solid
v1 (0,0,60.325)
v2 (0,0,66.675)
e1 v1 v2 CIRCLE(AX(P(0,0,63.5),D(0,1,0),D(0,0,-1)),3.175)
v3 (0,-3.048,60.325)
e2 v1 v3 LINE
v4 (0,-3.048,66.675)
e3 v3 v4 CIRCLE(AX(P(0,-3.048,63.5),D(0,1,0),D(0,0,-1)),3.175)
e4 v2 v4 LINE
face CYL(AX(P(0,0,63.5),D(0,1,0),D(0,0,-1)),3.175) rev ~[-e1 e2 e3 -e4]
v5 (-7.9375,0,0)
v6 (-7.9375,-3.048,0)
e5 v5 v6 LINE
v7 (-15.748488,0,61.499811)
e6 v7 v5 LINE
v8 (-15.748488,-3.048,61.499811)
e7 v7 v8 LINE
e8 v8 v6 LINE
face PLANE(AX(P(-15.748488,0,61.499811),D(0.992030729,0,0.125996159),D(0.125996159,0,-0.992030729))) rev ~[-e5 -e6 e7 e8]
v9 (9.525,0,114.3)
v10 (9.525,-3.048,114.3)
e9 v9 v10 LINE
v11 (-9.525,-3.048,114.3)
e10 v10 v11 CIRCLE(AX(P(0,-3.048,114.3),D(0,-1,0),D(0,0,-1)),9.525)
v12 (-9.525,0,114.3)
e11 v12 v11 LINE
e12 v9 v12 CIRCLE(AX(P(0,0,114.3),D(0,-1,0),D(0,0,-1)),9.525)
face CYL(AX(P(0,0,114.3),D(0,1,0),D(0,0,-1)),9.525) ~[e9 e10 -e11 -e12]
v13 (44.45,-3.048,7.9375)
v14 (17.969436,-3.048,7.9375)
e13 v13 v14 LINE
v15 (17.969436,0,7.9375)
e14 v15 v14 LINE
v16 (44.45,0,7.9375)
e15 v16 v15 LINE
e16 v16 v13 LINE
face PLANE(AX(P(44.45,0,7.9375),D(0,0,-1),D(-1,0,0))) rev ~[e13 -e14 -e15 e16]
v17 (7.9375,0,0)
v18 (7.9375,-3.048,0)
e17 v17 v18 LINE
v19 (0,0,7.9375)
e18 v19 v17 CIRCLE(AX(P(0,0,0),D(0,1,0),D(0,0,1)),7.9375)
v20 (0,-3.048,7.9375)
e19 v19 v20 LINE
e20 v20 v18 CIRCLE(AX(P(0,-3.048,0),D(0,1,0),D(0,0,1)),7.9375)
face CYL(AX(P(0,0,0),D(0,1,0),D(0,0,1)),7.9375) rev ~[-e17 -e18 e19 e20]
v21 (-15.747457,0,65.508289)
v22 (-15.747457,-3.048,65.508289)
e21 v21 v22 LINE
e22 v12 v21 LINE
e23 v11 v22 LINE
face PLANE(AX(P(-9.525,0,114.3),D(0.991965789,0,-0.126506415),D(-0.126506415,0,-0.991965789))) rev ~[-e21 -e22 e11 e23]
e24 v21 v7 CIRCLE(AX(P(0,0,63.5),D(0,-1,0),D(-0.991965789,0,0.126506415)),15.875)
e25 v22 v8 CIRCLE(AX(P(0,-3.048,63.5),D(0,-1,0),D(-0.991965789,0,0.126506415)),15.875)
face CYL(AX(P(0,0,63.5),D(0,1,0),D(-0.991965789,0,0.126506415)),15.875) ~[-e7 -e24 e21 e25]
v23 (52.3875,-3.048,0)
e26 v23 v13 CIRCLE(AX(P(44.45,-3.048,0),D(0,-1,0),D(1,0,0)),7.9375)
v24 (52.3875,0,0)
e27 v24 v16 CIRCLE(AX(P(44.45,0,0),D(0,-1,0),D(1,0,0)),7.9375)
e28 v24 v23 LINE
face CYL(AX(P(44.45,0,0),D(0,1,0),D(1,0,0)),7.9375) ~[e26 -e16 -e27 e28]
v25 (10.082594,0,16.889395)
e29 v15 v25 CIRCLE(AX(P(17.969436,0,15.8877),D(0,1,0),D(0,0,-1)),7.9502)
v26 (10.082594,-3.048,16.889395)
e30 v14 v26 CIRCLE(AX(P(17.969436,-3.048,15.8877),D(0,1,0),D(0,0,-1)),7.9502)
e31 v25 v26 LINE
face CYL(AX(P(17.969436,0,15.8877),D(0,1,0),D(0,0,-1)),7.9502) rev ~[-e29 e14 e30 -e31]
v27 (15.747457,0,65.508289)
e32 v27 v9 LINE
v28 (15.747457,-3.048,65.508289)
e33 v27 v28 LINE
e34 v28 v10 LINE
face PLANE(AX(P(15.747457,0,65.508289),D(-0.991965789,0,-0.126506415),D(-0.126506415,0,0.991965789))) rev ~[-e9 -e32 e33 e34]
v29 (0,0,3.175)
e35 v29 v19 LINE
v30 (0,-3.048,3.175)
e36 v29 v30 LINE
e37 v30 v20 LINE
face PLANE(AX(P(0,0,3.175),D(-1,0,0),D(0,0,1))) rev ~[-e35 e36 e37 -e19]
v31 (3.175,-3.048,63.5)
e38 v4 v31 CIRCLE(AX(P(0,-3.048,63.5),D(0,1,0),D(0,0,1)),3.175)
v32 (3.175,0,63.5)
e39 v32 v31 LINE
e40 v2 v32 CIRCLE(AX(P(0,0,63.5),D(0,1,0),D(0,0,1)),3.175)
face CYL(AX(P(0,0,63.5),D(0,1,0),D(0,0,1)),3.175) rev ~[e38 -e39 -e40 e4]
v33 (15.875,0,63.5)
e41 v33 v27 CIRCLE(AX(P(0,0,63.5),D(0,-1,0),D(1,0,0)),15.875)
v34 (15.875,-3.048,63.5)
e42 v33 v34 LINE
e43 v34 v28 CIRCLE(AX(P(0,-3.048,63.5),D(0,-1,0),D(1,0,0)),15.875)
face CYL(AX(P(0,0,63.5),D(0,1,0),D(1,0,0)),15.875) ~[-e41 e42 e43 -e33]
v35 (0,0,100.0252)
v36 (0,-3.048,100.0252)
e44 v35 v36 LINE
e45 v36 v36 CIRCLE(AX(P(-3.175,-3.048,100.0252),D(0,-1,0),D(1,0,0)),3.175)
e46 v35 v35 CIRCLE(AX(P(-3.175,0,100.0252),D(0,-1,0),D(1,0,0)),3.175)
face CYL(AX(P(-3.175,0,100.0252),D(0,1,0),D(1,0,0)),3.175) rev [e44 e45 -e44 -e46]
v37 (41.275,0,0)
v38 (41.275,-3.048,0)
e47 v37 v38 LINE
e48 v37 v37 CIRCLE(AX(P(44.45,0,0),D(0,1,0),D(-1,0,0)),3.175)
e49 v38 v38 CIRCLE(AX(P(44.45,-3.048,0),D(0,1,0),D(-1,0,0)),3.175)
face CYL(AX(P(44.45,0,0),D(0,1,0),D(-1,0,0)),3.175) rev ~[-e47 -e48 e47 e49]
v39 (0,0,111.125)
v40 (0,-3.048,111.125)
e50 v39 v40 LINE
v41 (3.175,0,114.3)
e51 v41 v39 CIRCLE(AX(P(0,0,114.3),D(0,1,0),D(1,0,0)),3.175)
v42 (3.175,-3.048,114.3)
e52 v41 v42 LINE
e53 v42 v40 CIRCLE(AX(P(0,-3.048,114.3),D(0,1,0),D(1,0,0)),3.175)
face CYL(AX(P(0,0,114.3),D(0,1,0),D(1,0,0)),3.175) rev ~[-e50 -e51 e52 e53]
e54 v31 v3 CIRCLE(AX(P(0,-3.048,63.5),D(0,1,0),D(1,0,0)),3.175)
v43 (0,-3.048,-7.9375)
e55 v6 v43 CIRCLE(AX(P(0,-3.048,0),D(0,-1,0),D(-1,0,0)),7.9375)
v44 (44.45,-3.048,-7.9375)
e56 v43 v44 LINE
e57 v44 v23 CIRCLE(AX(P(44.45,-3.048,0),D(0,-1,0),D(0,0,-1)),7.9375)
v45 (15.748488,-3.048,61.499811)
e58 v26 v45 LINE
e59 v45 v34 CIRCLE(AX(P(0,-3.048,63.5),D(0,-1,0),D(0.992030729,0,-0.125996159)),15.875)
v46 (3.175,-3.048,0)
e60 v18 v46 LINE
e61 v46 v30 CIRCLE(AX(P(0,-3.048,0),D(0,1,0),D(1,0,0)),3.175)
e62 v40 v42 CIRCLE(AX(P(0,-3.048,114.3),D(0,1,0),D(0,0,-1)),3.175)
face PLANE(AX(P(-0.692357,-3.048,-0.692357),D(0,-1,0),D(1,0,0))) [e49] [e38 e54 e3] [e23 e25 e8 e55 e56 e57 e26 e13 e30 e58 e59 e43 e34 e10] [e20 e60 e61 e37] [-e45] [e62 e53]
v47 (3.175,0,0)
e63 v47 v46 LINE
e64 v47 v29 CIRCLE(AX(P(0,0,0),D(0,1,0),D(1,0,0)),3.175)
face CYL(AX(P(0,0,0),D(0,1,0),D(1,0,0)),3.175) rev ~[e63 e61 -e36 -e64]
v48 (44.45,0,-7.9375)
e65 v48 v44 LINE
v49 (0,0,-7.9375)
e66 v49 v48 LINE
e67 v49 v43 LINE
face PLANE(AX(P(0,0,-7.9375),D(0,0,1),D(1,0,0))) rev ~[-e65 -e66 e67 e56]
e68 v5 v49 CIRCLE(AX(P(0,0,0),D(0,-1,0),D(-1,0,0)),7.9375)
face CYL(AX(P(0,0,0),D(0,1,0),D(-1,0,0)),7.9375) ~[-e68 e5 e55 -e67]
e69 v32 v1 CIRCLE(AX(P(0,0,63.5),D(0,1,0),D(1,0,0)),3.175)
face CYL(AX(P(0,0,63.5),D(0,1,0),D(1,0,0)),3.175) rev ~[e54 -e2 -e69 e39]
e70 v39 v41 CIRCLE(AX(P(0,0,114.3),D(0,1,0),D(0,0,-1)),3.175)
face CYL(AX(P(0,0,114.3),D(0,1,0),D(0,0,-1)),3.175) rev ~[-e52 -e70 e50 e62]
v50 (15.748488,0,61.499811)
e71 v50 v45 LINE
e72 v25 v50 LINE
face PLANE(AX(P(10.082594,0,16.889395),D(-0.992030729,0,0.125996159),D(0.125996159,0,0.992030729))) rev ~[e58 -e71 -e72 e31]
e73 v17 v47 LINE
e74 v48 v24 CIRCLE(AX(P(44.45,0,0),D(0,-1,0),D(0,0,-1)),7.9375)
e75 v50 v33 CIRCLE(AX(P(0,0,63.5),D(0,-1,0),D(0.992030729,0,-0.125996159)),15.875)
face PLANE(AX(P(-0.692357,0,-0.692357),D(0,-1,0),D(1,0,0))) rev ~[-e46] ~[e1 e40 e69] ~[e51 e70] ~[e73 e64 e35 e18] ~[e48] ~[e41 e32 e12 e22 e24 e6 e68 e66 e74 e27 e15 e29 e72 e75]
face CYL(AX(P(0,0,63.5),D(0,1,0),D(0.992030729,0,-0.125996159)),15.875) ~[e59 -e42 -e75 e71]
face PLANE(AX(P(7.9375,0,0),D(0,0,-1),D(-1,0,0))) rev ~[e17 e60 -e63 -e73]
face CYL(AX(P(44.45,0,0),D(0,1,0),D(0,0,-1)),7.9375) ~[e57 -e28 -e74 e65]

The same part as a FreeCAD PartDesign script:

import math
import FreeCAD as App
import Part
import Sketcher

V = App.Vector
Q = App.Units.Quantity

doc = App.newDocument("Part")
body = doc.addObject("PartDesign::Body", "Body")

# Sketch on XZ plane
sketch1 = doc.addObject("Sketcher::SketchObject", "Sketch")
body.addObject(sketch1)
sketch1.AttachmentSupport = (doc.XZ_Plane, [""])
sketch1.MapMode = "FlatFace"
sketch1.addGeometry(Part.ArcOfCircle(Part.Circle(V(0, 63.5, 0), V(0, 0, 1), 15.9), math.radians(172.73), math.radians(187.24)), False)
sketch1.addGeometry(Part.LineSegment(V(-15.7, 61.5, 0), V(-7.9, 0, 0)), False)
sketch1.addGeometry(Part.ArcOfCircle(Part.Circle(V(0, 0, 0), V(0, 0, 1), 7.9), math.radians(180), math.radians(270)), False)
sketch1.addGeometry(Part.LineSegment(V(0, -7.9, 0), V(44.5, -7.9, 0)), False)
sketch1.addGeometry(Part.ArcOfCircle(Part.Circle(V(44.5, 0, 0), V(0, 0, 1), 7.9), math.radians(-90), math.radians(0)), False)
sketch1.addGeometry(Part.ArcOfCircle(Part.Circle(V(44.5, 0, 0), V(0, 0, 1), 7.9), math.radians(0), math.radians(90)), False)
sketch1.addGeometry(Part.LineSegment(V(44.5, 7.9, 0), V(18, 7.9, 0)), False)
sketch1.addGeometry(Part.ArcOfCircle(Part.Circle(V(18, 15.9, 0), V(0, 0, 1), 8), math.radians(173), math.radians(270)), False)
sketch1.addGeometry(Part.LineSegment(V(10.1, 16.9, 0), V(15.7, 61.5, 0)), False)
sketch1.addGeometry(Part.ArcOfCircle(Part.Circle(V(0, 63.5, 0), V(0, 0, 1), 15.9), math.radians(-7.24), math.radians(0)), False)
sketch1.addGeometry(Part.ArcOfCircle(Part.Circle(V(0, 63.5, 0), V(0, 0, 1), 15.9), math.radians(0), math.radians(7.27)), False)
sketch1.addGeometry(Part.LineSegment(V(15.7, 65.5, 0), V(9.5, 114.3, 0)), False)
sketch1.addGeometry(Part.ArcOfCircle(Part.Circle(V(0, 114.3, 0), V(0, 0, 1), 9.5), math.radians(0), math.radians(180)), False)
sketch1.addGeometry(Part.LineSegment(V(-9.5, 114.3, 0), V(-15.7, 65.5, 0)), False)
sketch1.addGeometry(Part.ArcOfCircle(Part.Circle(V(0, 0, 0), V(0, 0, 1), 7.9), math.radians(0), math.radians(90)), False)
sketch1.addGeometry(Part.LineSegment(V(7.9, 0, 0), V(3.2, 0, 0)), False)
sketch1.addGeometry(Part.ArcOfCircle(Part.Circle(V(0, 0, 0), V(0, 0, 1), 3.2), math.radians(90), math.radians(360)), False)
sketch1.addGeometry(Part.LineSegment(V(0, 3.2, 0), V(0, 7.9, 0)), False)
sketch1.addGeometry(Part.Circle(V(44.5, 0, 0), V(0, 0, 1), 3.2), False)
sketch1.addGeometry(Part.ArcOfCircle(Part.Circle(V(0, 63.5, 0), V(0, 0, 1), 3.2), math.radians(90), math.radians(270)), False)
sketch1.addGeometry(Part.ArcOfCircle(Part.Circle(V(0, 63.5, 0), V(0, 0, 1), 3.2), math.radians(0), math.radians(90)), False)
sketch1.addGeometry(Part.ArcOfCircle(Part.Circle(V(0, 63.5, 0), V(0, 0, 1), 3.2), math.radians(-90), math.radians(0)), False)
sketch1.addGeometry(Part.Circle(V(-3.2, 100, 0), V(0, 0, 1), 3.2), False)
sketch1.addGeometry(Part.ArcOfCircle(Part.Circle(V(0, 114.3, 0), V(0, 0, 1), 3.2), math.radians(0), math.radians(270)), False)
sketch1.addGeometry(Part.ArcOfCircle(Part.Circle(V(0, 114.3, 0), V(0, 0, 1), 3.2), math.radians(-90), math.radians(0)), False)
sketch1.addConstraint(Sketcher.Constraint("Tangent", 0, 2, 1, 1))
sketch1.addConstraint(Sketcher.Constraint("Coincident", 1, 2, 2, 1))
sketch1.addConstraint(Sketcher.Constraint("Tangent", 2, 2, 3, 1))
sketch1.addConstraint(Sketcher.Constraint("Tangent", 3, 2, 4, 1))
sketch1.addConstraint(Sketcher.Constraint("Tangent", 4, 2, 5, 1))
sketch1.addConstraint(Sketcher.Constraint("Tangent", 5, 2, 6, 1))
sketch1.addConstraint(Sketcher.Constraint("Tangent", 6, 2, 7, 2))
sketch1.addConstraint(Sketcher.Constraint("Tangent", 7, 1, 8, 1))
sketch1.addConstraint(Sketcher.Constraint("Tangent", 8, 2, 9, 1))
sketch1.addConstraint(Sketcher.Constraint("Tangent", 9, 2, 10, 1))
sketch1.addConstraint(Sketcher.Constraint("Tangent", 10, 2, 11, 1))
sketch1.addConstraint(Sketcher.Constraint("Coincident", 11, 2, 12, 1))
sketch1.addConstraint(Sketcher.Constraint("Coincident", 12, 2, 13, 1))
sketch1.addConstraint(Sketcher.Constraint("Tangent", 13, 2, 0, 1))
sketch1.addConstraint(Sketcher.Constraint("Coincident", 14, 1, 15, 1))
sketch1.addConstraint(Sketcher.Constraint("Coincident", 15, 2, 16, 2))
sketch1.addConstraint(Sketcher.Constraint("Coincident", 16, 1, 17, 1))
sketch1.addConstraint(Sketcher.Constraint("Coincident", 17, 2, 14, 2))
sketch1.addConstraint(Sketcher.Constraint("Tangent", 19, 1, 20, 2))
sketch1.addConstraint(Sketcher.Constraint("Tangent", 20, 1, 21, 2))
sketch1.addConstraint(Sketcher.Constraint("Tangent", 21, 1, 19, 2))
sketch1.addConstraint(Sketcher.Constraint("Tangent", 23, 1, 24, 2))
sketch1.addConstraint(Sketcher.Constraint("Coincident", 24, 1, 23, 2))
sketch1.addConstraint(Sketcher.Constraint("Horizontal", 3))
sketch1.addConstraint(Sketcher.Constraint("Horizontal", 6))
sketch1.addConstraint(Sketcher.Constraint("Horizontal", 15))
sketch1.addConstraint(Sketcher.Constraint("Vertical", 17))
sketch1.addConstraint(Sketcher.Constraint("Coincident", 2, 3, -1, 1))
sketch1.addConstraint(Sketcher.Constraint("Coincident", 14, 3, -1, 1))
sketch1.addConstraint(Sketcher.Constraint("Coincident", 16, 3, -1, 1))
sketch1.addConstraint(Sketcher.Constraint("Coincident", 9, 3, 0, 3))
sketch1.addConstraint(Sketcher.Constraint("Coincident", 18, 3, 4, 3))
sketch1.addConstraint(Sketcher.Constraint("Coincident", 19, 3, 0, 3))
sketch1.addConstraint(Sketcher.Constraint("Coincident", 23, 3, 12, 3))
sketch1.addConstraint(Sketcher.Constraint("Equal", 2, 4))
sketch1.addConstraint(Sketcher.Constraint("Equal", 4, 5))
sketch1.addConstraint(Sketcher.Constraint("Equal", 0, 9))
sketch1.addConstraint(Sketcher.Constraint("Equal", 9, 10))
sketch1.addConstraint(Sketcher.Constraint("Equal", 5, 14))
sketch1.addConstraint(Sketcher.Constraint("Equal", 16, 18))
sketch1.addConstraint(Sketcher.Constraint("Equal", 18, 19))
sketch1.addConstraint(Sketcher.Constraint("Equal", 21, 22))
sketch1.addConstraint(Sketcher.Constraint("Equal", 22, 23))
sketch1.addConstraint(Sketcher.Constraint("Symmetric", 0, 2, 8, 2, -2))
sketch1.addConstraint(Sketcher.Constraint("Symmetric", 11, 2, 12, 2, -2))
sketch1.addConstraint(Sketcher.Constraint("PointOnObject", 1, 2, -1))
sketch1.addConstraint(Sketcher.Constraint("PointOnObject", 4, 2, -1))
sketch1.addConstraint(Sketcher.Constraint("PointOnObject", 14, 1, -1))
sketch1.addConstraint(Sketcher.Constraint("PointOnObject", 16, 1, -2))
sketch1.addConstraint(Sketcher.Constraint("PointOnObject", 19, 1, -2))
sketch1.addConstraint(Sketcher.Constraint("PointOnObject", 21, 1, -2))
sketch1.addConstraint(Sketcher.Constraint("PointOnObject", 24, 1, -2))
sketch1.addConstraint(Sketcher.Constraint("Horizontal", 21, 3, 9, 2))
sketch1.addConstraint(Sketcher.Constraint("Horizontal", 24, 3, 11, 2))
sketch1.addConstraint(Sketcher.Constraint("Horizontal", 9, 2, 20, 1))
sketch1.addConstraint(Sketcher.Constraint("Horizontal", 12, 2, 23, 1))
sketch1.addConstraint(Sketcher.Constraint("Diameter", 18, Q("0.25 in")))
sketch1.addConstraint(Sketcher.Constraint("Radius", 0, Q("0.625 in")))
sketch1.addConstraint(Sketcher.Constraint("Radius", 2, Q("0.3125 in")))
sketch1.addConstraint(Sketcher.Constraint("Radius", 7, Q("0.313 in")))
sketch1.addConstraint(Sketcher.Constraint("Radius", 12, Q("0.375 in")))
sketch1.addConstraint(Sketcher.Constraint("DistanceY", 10, 3, 12, 3, Q("2 in")))
sketch1.addConstraint(Sketcher.Constraint("DistanceX", 3, 1, 3, 2, Q("1.75 in")))
sketch1.addConstraint(Sketcher.Constraint("DistanceY", -1, 1, 0, 3, Q("2.5 in")))
sketch1.addConstraint(Sketcher.Constraint("DistanceX", 22, 3, 11, 2, Q("0.5 in")))
sketch1.addConstraint(Sketcher.Constraint("DistanceY", -1, 1, 22, 3, Q("3.938 in")))
pad1 = doc.addObject("PartDesign::Pad", "Pad")
body.addObject(pad1)
pad1.Profile = sketch1
pad1.Length = Q("0.12 in")

doc.recompute()
